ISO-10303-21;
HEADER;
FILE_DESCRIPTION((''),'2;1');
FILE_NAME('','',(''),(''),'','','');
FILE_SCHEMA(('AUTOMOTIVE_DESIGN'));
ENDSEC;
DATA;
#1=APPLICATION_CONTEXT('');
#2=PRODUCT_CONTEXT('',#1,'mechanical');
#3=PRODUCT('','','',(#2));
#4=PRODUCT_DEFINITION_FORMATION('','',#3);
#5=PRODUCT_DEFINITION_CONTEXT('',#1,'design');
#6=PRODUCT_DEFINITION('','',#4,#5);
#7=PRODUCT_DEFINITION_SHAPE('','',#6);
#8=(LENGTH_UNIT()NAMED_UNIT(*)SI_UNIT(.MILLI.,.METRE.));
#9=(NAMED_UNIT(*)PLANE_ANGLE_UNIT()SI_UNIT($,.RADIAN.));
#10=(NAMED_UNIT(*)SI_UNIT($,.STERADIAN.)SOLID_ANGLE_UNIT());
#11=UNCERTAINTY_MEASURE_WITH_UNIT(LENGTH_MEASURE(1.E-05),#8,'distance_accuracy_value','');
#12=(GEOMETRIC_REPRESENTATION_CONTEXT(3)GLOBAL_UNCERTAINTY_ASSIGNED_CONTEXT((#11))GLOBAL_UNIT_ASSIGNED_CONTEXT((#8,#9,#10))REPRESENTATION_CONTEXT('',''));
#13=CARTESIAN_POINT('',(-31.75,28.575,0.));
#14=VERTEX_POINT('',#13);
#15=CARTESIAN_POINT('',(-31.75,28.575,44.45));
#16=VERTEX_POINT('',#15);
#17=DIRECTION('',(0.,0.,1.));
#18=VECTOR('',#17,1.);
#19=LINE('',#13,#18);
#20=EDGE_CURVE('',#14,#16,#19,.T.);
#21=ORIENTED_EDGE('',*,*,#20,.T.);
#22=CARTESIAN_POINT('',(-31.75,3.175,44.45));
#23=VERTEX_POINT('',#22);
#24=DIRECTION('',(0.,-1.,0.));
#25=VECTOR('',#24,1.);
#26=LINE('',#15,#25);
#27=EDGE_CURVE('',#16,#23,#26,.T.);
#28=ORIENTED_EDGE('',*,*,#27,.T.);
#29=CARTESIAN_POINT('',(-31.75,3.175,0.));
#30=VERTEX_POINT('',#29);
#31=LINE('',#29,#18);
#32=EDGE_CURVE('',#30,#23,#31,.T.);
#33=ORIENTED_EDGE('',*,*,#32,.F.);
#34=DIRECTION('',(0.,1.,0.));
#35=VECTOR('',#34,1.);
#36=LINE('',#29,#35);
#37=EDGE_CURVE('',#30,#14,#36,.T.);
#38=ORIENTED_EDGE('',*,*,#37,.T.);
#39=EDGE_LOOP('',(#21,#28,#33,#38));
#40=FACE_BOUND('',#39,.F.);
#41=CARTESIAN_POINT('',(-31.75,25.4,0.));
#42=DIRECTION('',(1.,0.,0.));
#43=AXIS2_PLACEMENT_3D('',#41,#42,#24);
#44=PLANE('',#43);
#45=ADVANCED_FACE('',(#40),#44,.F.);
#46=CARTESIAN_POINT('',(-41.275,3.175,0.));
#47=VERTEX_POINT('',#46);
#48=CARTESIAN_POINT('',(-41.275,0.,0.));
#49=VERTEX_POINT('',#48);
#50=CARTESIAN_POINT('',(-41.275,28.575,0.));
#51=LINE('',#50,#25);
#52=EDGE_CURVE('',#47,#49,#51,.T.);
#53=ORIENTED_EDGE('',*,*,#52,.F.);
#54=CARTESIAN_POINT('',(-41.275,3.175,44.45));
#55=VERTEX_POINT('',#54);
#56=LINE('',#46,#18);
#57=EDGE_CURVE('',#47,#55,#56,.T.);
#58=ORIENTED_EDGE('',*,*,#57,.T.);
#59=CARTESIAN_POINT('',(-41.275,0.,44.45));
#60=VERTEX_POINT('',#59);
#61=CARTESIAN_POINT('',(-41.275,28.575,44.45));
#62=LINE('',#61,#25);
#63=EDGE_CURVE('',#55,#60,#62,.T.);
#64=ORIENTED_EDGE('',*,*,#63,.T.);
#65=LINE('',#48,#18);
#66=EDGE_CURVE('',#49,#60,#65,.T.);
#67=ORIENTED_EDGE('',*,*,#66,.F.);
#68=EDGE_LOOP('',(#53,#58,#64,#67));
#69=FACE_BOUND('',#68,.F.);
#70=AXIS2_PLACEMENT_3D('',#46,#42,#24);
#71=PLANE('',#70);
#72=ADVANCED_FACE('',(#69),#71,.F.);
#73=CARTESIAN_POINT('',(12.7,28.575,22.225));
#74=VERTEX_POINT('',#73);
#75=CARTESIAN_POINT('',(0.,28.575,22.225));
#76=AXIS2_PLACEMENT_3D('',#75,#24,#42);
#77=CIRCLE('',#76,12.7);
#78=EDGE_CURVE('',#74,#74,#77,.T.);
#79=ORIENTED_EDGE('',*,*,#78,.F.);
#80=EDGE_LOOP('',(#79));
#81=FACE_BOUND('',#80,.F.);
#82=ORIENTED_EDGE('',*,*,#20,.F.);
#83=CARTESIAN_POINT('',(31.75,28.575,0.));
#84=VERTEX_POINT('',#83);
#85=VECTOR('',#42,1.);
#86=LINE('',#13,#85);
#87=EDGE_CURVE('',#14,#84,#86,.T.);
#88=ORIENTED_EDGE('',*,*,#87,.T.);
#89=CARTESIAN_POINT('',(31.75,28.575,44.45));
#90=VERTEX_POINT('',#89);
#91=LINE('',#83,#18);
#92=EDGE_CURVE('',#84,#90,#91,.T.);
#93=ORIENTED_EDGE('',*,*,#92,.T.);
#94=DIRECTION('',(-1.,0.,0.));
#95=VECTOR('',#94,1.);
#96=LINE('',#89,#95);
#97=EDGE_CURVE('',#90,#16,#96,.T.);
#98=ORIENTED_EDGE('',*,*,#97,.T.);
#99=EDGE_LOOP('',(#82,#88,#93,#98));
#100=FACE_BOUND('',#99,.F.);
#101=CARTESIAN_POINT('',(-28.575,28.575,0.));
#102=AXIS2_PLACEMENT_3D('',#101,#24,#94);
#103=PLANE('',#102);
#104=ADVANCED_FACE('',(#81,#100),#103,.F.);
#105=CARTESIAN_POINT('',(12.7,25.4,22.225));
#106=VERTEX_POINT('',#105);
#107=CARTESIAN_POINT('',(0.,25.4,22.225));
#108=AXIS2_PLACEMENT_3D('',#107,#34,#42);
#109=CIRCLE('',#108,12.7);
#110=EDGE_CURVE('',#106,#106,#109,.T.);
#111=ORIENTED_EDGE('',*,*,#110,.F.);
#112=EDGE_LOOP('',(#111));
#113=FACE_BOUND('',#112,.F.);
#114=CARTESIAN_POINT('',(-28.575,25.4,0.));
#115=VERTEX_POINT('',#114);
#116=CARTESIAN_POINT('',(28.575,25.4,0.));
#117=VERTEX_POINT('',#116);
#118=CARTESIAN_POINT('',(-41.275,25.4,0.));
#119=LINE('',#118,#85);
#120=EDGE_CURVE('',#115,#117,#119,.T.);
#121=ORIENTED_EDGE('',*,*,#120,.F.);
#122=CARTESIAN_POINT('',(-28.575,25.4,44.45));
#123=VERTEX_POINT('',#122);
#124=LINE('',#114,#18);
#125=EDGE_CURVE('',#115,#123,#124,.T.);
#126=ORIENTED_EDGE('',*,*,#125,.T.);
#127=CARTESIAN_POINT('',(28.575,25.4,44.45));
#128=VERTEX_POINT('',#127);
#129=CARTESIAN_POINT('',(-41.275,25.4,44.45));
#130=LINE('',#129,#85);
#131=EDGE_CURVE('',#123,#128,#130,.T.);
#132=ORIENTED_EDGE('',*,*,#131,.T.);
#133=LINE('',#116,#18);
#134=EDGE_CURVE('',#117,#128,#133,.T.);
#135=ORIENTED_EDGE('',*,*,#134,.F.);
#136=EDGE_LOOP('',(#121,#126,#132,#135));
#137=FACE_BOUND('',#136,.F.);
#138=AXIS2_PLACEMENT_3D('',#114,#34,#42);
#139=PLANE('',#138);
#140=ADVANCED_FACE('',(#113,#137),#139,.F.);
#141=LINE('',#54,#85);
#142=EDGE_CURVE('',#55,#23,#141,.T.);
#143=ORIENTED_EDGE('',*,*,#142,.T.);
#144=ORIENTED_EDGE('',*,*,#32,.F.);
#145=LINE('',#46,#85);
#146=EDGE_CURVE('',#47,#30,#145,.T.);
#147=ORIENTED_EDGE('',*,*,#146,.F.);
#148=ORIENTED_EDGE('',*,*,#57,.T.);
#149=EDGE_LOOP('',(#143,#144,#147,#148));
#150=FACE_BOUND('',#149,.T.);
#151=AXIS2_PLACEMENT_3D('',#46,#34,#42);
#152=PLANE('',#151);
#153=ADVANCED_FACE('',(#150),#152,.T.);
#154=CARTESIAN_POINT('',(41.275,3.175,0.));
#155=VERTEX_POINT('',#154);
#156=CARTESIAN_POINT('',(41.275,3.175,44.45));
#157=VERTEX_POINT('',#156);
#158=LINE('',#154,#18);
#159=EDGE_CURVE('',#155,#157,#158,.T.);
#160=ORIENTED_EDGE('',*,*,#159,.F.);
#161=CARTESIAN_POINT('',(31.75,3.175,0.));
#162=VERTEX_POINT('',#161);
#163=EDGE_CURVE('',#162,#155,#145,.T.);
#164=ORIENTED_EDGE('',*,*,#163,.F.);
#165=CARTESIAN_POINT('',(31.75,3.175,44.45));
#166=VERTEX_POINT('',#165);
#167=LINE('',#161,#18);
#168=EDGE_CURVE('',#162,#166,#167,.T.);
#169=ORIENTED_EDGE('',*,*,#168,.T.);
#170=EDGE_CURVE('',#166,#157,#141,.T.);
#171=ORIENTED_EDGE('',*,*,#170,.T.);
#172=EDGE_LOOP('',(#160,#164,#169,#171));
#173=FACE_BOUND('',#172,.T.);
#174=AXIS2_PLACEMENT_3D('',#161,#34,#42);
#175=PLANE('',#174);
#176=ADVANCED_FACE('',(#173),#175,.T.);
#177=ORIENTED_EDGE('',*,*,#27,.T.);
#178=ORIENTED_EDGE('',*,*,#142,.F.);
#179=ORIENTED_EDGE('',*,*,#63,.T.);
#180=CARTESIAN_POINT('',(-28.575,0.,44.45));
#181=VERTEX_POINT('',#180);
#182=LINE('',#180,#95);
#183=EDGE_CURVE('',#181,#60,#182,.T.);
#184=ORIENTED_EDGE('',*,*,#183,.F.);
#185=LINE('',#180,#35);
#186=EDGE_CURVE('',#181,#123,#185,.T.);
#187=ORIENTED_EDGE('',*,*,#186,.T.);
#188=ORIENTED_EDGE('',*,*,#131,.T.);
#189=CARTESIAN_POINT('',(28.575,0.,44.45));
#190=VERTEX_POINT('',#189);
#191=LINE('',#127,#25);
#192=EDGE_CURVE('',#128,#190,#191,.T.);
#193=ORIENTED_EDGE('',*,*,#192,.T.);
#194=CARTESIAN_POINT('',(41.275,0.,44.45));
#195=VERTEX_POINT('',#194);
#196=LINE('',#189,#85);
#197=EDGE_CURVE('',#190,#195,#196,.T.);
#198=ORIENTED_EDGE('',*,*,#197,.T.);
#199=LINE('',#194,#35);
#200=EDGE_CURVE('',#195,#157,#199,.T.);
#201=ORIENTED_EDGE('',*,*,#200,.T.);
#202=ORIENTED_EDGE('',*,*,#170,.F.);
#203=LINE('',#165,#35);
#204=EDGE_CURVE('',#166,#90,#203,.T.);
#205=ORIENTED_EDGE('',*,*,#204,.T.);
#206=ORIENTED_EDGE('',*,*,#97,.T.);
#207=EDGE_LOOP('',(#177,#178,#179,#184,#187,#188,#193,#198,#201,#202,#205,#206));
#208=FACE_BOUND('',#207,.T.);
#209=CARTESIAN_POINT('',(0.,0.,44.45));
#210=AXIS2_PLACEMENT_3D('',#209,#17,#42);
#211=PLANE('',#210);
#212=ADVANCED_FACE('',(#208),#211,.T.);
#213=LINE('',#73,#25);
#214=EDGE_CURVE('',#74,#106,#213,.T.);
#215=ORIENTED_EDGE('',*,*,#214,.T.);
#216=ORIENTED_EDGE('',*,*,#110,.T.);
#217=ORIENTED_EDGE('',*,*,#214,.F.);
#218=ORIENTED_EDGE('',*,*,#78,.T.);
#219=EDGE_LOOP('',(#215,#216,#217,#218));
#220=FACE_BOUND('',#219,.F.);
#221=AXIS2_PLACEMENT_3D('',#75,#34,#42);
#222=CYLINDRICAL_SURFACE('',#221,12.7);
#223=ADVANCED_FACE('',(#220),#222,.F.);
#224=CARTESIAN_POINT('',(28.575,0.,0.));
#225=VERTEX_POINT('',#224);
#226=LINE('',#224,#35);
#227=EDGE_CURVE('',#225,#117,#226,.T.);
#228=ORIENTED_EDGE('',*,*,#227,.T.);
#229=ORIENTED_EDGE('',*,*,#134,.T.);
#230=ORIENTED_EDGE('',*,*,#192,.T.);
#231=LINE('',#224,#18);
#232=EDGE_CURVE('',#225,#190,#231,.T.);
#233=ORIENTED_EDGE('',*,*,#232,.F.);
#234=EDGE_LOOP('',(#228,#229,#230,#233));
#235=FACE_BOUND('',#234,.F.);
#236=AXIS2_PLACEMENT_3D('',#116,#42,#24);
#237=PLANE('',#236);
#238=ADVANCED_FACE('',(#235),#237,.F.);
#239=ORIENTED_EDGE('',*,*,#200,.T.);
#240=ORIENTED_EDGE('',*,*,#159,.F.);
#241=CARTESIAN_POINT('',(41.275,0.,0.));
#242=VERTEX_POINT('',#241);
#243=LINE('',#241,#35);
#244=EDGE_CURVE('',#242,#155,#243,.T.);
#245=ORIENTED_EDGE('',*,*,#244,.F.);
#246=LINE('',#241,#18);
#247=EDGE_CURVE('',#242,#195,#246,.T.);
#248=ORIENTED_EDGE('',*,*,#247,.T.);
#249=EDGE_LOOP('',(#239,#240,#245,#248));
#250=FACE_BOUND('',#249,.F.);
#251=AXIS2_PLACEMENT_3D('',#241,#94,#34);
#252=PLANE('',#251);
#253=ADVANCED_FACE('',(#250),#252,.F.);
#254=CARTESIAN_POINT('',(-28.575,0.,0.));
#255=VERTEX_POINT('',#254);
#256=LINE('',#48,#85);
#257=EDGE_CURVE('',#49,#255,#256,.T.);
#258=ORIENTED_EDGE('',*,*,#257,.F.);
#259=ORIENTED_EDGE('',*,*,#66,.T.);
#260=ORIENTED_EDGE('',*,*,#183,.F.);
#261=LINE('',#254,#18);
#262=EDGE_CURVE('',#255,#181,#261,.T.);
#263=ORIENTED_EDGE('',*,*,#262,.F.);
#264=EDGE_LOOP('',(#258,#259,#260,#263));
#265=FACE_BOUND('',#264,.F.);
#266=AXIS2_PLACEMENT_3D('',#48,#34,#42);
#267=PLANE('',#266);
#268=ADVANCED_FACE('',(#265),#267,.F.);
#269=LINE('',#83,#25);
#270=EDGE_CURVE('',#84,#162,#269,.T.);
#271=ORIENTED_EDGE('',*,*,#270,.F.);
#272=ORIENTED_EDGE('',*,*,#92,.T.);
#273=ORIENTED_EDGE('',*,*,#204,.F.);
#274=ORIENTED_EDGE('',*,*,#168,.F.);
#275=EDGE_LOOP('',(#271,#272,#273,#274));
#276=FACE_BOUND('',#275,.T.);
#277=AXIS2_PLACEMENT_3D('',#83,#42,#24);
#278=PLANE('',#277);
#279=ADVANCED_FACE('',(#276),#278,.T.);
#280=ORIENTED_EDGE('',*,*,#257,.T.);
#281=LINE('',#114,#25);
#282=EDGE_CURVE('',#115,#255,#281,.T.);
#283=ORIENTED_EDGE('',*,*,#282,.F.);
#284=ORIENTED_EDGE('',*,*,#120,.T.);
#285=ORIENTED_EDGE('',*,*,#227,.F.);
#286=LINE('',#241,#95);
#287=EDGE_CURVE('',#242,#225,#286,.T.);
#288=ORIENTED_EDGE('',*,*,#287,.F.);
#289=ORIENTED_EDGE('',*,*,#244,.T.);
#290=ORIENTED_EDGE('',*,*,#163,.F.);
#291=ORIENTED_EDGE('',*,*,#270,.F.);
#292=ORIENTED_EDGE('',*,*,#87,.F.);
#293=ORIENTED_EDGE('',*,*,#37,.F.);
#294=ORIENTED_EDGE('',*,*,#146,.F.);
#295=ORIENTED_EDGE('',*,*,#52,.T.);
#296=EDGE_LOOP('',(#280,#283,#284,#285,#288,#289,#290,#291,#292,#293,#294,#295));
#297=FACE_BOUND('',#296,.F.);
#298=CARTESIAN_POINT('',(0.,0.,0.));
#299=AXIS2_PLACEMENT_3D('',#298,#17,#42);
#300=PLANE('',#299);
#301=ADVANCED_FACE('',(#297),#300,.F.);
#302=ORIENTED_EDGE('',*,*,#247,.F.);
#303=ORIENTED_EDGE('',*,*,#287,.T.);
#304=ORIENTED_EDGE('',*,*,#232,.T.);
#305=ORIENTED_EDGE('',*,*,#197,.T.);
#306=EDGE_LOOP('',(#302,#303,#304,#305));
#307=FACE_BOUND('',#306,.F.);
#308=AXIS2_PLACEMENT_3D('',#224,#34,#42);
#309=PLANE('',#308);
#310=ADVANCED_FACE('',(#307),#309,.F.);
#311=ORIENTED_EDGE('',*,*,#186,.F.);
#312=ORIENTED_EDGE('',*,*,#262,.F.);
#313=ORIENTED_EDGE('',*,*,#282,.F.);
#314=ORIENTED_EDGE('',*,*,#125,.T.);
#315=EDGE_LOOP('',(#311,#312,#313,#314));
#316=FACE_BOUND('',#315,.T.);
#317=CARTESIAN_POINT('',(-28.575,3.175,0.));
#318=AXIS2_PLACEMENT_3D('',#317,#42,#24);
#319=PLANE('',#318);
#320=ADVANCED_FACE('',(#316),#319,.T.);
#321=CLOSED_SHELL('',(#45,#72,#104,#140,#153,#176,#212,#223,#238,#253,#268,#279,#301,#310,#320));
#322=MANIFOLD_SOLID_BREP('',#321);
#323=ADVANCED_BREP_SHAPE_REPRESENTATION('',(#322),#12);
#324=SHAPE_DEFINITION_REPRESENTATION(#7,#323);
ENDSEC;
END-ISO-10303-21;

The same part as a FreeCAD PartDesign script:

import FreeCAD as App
import Part
import Sketcher

V = App.Vector
Q = App.Units.Quantity

doc = App.newDocument("Part")
body = doc.addObject("PartDesign::Body", "Body")

sketch1 = body.newObject("Sketcher::SketchObject", "Sketch")
sketch1.AttachmentSupport = (doc.getObject("XY_Plane"), [""])
sketch1.MapMode = "FlatFace"
sketch1.addGeometry([
    Part.LineSegment(V(-41.3, 3.2, 0), V(-41.3, 0, 0)),
    Part.LineSegment(V(-41.3, 0, 0), V(-28.6, 0, 0)),
    Part.LineSegment(V(-28.6, 0, 0), V(-28.6, 25.4, 0)),
    Part.LineSegment(V(-28.6, 25.4, 0), V(28.6, 25.4, 0)),
    Part.LineSegment(V(28.6, 25.4, 0), V(28.6, 0, 0)),
    Part.LineSegment(V(28.6, 0, 0), V(41.3, 0, 0)),
    Part.LineSegment(V(41.3, 0, 0), V(41.3, 3.2, 0)),
    Part.LineSegment(V(41.3, 3.2, 0), V(31.8, 3.2, 0)),
    Part.LineSegment(V(31.8, 3.2, 0), V(31.8, 28.6, 0)),
    Part.LineSegment(V(31.8, 28.6, 0), V(-31.8, 28.6, 0)),
    Part.LineSegment(V(-31.8, 28.6, 0), V(-31.8, 3.2, 0)),
    Part.LineSegment(V(-31.8, 3.2, 0), V(-41.3, 3.2, 0)),
], False)
sketch1.addConstraint([
    Sketcher.Constraint("Coincident", 0, 2, 1, 1),
    Sketcher.Constraint("Coincident", 1, 2, 2, 1),
    Sketcher.Constraint("Coincident", 2, 2, 3, 1),
    Sketcher.Constraint("Coincident", 3, 2, 4, 1),
    Sketcher.Constraint("Coincident", 4, 2, 5, 1),
    Sketcher.Constraint("Coincident", 5, 2, 6, 1),
    Sketcher.Constraint("Coincident", 6, 2, 7, 1),
    Sketcher.Constraint("Coincident", 7, 2, 8, 1),
    Sketcher.Constraint("Coincident", 8, 2, 9, 1),
    Sketcher.Constraint("Coincident", 9, 2, 10, 1),
    Sketcher.Constraint("Coincident", 10, 2, 11, 1),
    Sketcher.Constraint("Coincident", 11, 2, 0, 1),
    Sketcher.Constraint("Vertical", 0),
    Sketcher.Constraint("Horizontal", 1),
    Sketcher.Constraint("Vertical", 2),
    Sketcher.Constraint("Horizontal", 3),
    Sketcher.Constraint("Vertical", 4),
    Sketcher.Constraint("Horizontal", 5),
    Sketcher.Constraint("Vertical", 6),
    Sketcher.Constraint("Horizontal", 7),
    Sketcher.Constraint("Vertical", 8),
    Sketcher.Constraint("Horizontal", 9),
    Sketcher.Constraint("Vertical", 10),
    Sketcher.Constraint("Horizontal", 11),
    Sketcher.Constraint("Symmetric", 1, 2, 4, 2, -1, 1),
    Sketcher.Constraint("Symmetric", 0, 2, 5, 2, -2),
    Sketcher.Constraint("Symmetric", 7, 2, 10, 2, -2),
    Sketcher.Constraint("Equal", 4, 8),
    Sketcher.Constraint("DistanceX", 1, 1, 1, 2, Q("0.5 in")),
    Sketcher.Constraint("DistanceX", 3, 1, 3, 2, Q("2.25 in")),
    Sketcher.Constraint("DistanceY", 0, 2, 0, 1, Q("0.125 in")),
    Sketcher.Constraint("DistanceY", 2, 1, 2, 2, Q("1 in")),
    Sketcher.Constraint("DistanceX", 9, 2, 9, 1, Q("2.5 in")),
])
pad1 = body.newObject("PartDesign::Pad", "Pad")
pad1.Profile = sketch1
pad1.Length = Q("1.75 in")

sketch2 = body.newObject("Sketcher::SketchObject", "Sketch001")
sketch2.AttachmentSupport = (doc.getObject("XZ_Plane"), [""])
sketch2.MapMode = "FlatFace"
sketch2.AttachmentOffset = App.Placement(V(0, 0, -1.125 * 25.4), App.Rotation())
sketch2.addGeometry(Part.Circle(V(0, 22, 0), V(0, 0, 1), 13), False)
sketch2.addConstraint([
    Sketcher.Constraint("PointOnObject", 0, 3, -2),
    Sketcher.Constraint("Diameter", 0, Q("1 in")),
    Sketcher.Constraint("DistanceY", -1, 1, 0, 3, Q("0.875 in")),
])
pocket1 = body.newObject("PartDesign::Pocket", "Pocket")
pocket1.Profile = sketch2
pocket1.Type = "ThroughAll"
pocket1.Reversed = True

doc.recompute()
